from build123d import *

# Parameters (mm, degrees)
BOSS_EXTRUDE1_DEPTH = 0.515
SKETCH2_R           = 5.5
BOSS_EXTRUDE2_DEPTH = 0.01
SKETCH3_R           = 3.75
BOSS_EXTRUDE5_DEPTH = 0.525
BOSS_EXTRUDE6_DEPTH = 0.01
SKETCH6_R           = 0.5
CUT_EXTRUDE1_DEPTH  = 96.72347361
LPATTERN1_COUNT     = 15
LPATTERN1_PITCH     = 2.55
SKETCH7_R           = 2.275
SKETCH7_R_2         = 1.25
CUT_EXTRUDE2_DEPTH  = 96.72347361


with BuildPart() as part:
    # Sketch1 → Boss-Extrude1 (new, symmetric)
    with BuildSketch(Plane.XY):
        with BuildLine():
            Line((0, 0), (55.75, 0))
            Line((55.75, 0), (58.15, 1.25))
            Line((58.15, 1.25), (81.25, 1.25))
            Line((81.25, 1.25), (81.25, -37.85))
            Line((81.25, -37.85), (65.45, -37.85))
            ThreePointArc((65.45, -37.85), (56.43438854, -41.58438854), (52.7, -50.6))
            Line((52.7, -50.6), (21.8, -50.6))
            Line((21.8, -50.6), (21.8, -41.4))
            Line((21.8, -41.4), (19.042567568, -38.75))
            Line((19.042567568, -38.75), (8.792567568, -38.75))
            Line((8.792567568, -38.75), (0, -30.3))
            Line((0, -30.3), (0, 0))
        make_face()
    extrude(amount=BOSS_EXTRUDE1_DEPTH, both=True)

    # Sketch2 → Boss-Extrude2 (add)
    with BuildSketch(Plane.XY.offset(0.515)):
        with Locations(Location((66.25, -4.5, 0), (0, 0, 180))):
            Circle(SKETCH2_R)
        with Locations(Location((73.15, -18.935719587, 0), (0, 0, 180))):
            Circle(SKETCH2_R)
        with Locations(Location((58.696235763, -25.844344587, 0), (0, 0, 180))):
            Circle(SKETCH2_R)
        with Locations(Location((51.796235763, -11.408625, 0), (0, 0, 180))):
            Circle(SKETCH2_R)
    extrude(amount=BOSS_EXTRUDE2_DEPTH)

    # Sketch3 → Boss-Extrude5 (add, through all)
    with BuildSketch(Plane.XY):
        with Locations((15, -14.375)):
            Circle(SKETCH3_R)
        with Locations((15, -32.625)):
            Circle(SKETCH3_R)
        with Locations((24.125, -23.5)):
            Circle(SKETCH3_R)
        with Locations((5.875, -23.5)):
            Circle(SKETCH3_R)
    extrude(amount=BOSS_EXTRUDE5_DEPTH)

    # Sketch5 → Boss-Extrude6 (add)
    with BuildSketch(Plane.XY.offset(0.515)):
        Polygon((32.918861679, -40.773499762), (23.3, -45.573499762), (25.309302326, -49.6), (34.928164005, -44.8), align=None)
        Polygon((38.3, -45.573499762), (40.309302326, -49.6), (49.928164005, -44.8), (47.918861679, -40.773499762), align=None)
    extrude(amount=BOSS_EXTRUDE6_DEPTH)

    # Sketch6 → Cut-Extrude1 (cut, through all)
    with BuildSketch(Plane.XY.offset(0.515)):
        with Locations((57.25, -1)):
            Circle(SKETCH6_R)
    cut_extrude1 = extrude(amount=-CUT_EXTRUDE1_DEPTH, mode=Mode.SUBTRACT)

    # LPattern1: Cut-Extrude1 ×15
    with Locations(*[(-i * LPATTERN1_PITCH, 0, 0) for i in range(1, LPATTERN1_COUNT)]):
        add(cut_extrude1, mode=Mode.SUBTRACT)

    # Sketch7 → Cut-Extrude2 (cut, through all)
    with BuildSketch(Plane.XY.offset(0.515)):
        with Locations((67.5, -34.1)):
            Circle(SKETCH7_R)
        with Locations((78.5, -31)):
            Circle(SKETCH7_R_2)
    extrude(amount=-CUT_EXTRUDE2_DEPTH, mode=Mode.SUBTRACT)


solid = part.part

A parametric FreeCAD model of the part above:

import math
import FreeCAD as App
import Part
import Sketcher
from FreeCAD import Vector

doc = App.newDocument("Part")
body = doc.addObject("PartDesign::Body", "Body")

# Sketch on XY plane
sketch1 = doc.addObject("Sketcher::SketchObject", "Sketch")
body.addObject(sketch1)
sketch1.AttachmentSupport = (doc.XY_Plane, [""])
sketch1.MapMode = "FlatFace"
sketch1.addGeometry([
    Part.LineSegment(Vector(55.8, 0, 0), Vector(0, 0, 0)),  # 0
    Part.LineSegment(Vector(0, 0, 0), Vector(0, -30.3, 0)),  # 1
    Part.LineSegment(Vector(0, -30.3, 0), Vector(8.8, -38.8, 0)),  # 2
    Part.LineSegment(Vector(8.8, -38.8, 0), Vector(19, -38.8, 0)),  # 3
    Part.LineSegment(Vector(19, -38.8, 0), Vector(21.8, -41.4, 0)),  # 4
    Part.LineSegment(Vector(21.8, -41.4, 0), Vector(21.8, -50.6, 0)),  # 5
    Part.LineSegment(Vector(21.8, -50.6, 0), Vector(52.7, -50.6, 0)),  # 6
    Part.ArcOfCircle(Part.Circle(Vector(65.5, -50.6, 0), Vector(0, 0, 1), 12.8), math.radians(90), math.radians(180)),  # 7
    Part.LineSegment(Vector(65.5, -37.9, 0), Vector(81.2, -37.9, 0)),  # 8
    Part.LineSegment(Vector(81.2, -37.9, 0), Vector(81.2, 1.2, 0)),  # 9
    Part.LineSegment(Vector(81.2, 1.2, 0), Vector(58.1, 1.2, 0)),  # 10
    Part.LineSegment(Vector(58.1, 1.2, 0), Vector(55.8, 0, 0)),  # 11
], False)
sketch1.addConstraint([
    Sketcher.Constraint("Coincident", 0, 2, 1, 1),
    Sketcher.Constraint("Coincident", 1, 2, 2, 1),
    Sketcher.Constraint("Coincident", 2, 2, 3, 1),
    Sketcher.Constraint("Coincident", 3, 2, 4, 1),
    Sketcher.Constraint("Coincident", 4, 2, 5, 1),
    Sketcher.Constraint("Coincident", 5, 2, 6, 1),
    Sketcher.Constraint("Coincident", 6, 2, 7, 2),
    Sketcher.Constraint("Tangent", 7, 1, 8, 1),
    Sketcher.Constraint("Coincident", 8, 2, 9, 1),
    Sketcher.Constraint("Coincident", 9, 2, 10, 1),
    Sketcher.Constraint("Coincident", 10, 2, 11, 1),
    Sketcher.Constraint("Coincident", 11, 2, 0, 1),
    Sketcher.Constraint("Horizontal", 0),
    Sketcher.Constraint("Vertical", 1),
    Sketcher.Constraint("Horizontal", 3),
    Sketcher.Constraint("Vertical", 5),
    Sketcher.Constraint("Horizontal", 6),
    Sketcher.Constraint("Horizontal", 8),
    Sketcher.Constraint("Vertical", 9),
    Sketcher.Constraint("Horizontal", 10),
    Sketcher.Constraint("Coincident", 0, 2, -1, 1),
    Sketcher.Constraint("Parallel", 2, 4),
    Sketcher.Constraint("Horizontal", 7, 3, 5, 2),
    Sketcher.Constraint("Radius", 7, 12.75),
    Sketcher.Constraint("DistanceX", 6, 1, 6, 2, 30.9),
    Sketcher.Constraint("DistanceX", 8, 1, 8, 2, 15.8),
    Sketcher.Constraint("DistanceX", 10, 2, 10, 1, 23.1),
    Sketcher.Constraint("DistanceY", 1, 2, 1, 1, 30.3),
    Sketcher.Constraint("DistanceY", 5, 2, 5, 1, 9.2),
    Sketcher.Constraint("DistanceY", 9, 1, 9, 2, 39.1),
    Sketcher.Constraint("DistanceX", 0, 2, 0, 1, 55.75),
    Sketcher.Constraint("DistanceX", 3, 1, 3, 2, 10.25),
    Sketcher.Constraint("DistanceY", 7, 3, -1, 1, 50.6),
    Sketcher.Constraint("DistanceX", -1, 1, 4, 2, 21.8),
    Sketcher.Constraint("DistanceY", 3, 2, 7, 1, 0.9),
])
pad1 = doc.addObject("PartDesign::Pad", "Pad")
body.addObject(pad1)
pad1.Profile = sketch1
pad1.Length = 1.03
pad1.Midplane = True

# Sketch on XY plane
sketch2 = doc.addObject("Sketcher::SketchObject", "Sketch001")
body.addObject(sketch2)
sketch2.AttachmentSupport = (doc.XY_Plane, [""])
sketch2.MapMode = "FlatFace"
sketch2.AttachmentOffset = App.Placement(Vector(0, 0, 0.515), App.Rotation())
sketch2.addGeometry([
    Part.Circle(Vector(66, -4, 0), Vector(0, 0, 1), 6),
    Part.Circle(Vector(73, -19, 0), Vector(0, 0, 1), 6),
    Part.Circle(Vector(59, -26, 0), Vector(0, 0, 1), 6),
    Part.Circle(Vector(52, -11, 0), Vector(0, 0, 1), 6),
], False)
sketch2.addConstraint([
    Sketcher.Constraint("Equal", 0, 1),
    Sketcher.Constraint("Equal", 1, 2),
    Sketcher.Constraint("Equal", 2, 3),
    Sketcher.Constraint("Diameter", 0, 11.0),
    Sketcher.Constraint("DistanceY", 0, 3, -1, 1, 4.5),
    Sketcher.Constraint("DistanceX", 0, 3, 1, 3, 6.9),
    Sketcher.Constraint("DistanceX", 3, 3, 2, 3, 6.9),
    Sketcher.Constraint("DistanceX", -1, 1, 0, 3, 66.25),
    Sketcher.Constraint("DistanceY", 1, 3, -1, 1, 18.93572),
    Sketcher.Constraint("DistanceY", 2, 3, 3, 3, 14.43572),
    Sketcher.Constraint("DistanceX", -1, 1, 2, 3, 58.696236),
    Sketcher.Constraint("DistanceY", 2, 3, -1, 1, 25.844345),
])
pad2 = doc.addObject("PartDesign::Pad", "Pad001")
body.addObject(pad2)
pad2.Profile = sketch2
pad2.Length = 0.01

# Sketch on XY plane
sketch3 = doc.addObject("Sketcher::SketchObject", "Sketch002")
body.addObject(sketch3)
sketch3.AttachmentSupport = (doc.XY_Plane, [""])
sketch3.MapMode = "FlatFace"
sketch3.addGeometry([
    Part.Circle(Vector(15, -14.4, 0), Vector(0, 0, 1), 3.8),
    Part.Circle(Vector(15, -32.6, 0), Vector(0, 0, 1), 3.8),
    Part.Circle(Vector(24.1, -23.5, 0), Vector(0, 0, 1), 3.8),
    Part.Circle(Vector(5.9, -23.5, 0), Vector(0, 0, 1), 3.8),
], False)
sketch3.addConstraint([
    Sketcher.Constraint("Equal", 0, 1),
    Sketcher.Constraint("Equal", 1, 2),
    Sketcher.Constraint("Equal", 2, 3),
    Sketcher.Constraint("Horizontal", 2, 3, 3, 3),
    Sketcher.Constraint("Vertical", 0, 3, 1, 3),
    Sketcher.Constraint("Diameter", 0, 7.5),
    Sketcher.Constraint("DistanceX", -1, 1, 0, 3, 15.0),
    Sketcher.Constraint("DistanceY", 2, 3, -1, 1, 23.5),
    Sketcher.Constraint("DistanceY", 1, 3, 0, 3, 18.25),
    Sketcher.Constraint("DistanceX", 3, 3, 2, 3, 18.25),
    Sketcher.Constraint("DistanceY", 0, 3, -1, 1, 14.375),
    Sketcher.Constraint("DistanceX", -1, 1, 2, 3, 24.125),
])
pad3 = doc.addObject("PartDesign::Pad", "Pad002")
body.addObject(pad3)
pad3.Profile = sketch3
pad3.Length = 0.525

# Sketch on XY plane
sketch4 = doc.addObject("Sketcher::SketchObject", "Sketch003")
body.addObject(sketch4)
sketch4.AttachmentSupport = (doc.XY_Plane, [""])
sketch4.MapMode = "FlatFace"
sketch4.AttachmentOffset = App.Placement(Vector(0, 0, 0.515), App.Rotation())
sketch4.addGeometry([
    Part.LineSegment(Vector(32.9, -40.8, 0), Vector(23.3, -45.6, 0)),  # 0
    Part.LineSegment(Vector(23.3, -45.6, 0), Vector(25.3, -49.6, 0)),  # 1
    Part.LineSegment(Vector(25.3, -49.6, 0), Vector(34.9, -44.8, 0)),  # 2
    Part.LineSegment(Vector(34.9, -44.8, 0), Vector(32.9, -40.8, 0)),  # 3
    Part.LineSegment(Vector(38.3, -45.6, 0), Vector(40.3, -49.6, 0)),  # 4
    Part.LineSegment(Vector(40.3, -49.6, 0), Vector(49.9, -44.8, 0)),  # 5
    Part.LineSegment(Vector(49.9, -44.8, 0), Vector(47.9, -40.8, 0)),  # 6
    Part.LineSegment(Vector(47.9, -40.8, 0), Vector(38.3, -45.6, 0)),  # 7
], False)
sketch4.addConstraint([
    Sketcher.Constraint("Coincident", 0, 2, 1, 1),
    Sketcher.Constraint("Coincident", 1, 2, 2, 1),
    Sketcher.Constraint("Coincident", 2, 2, 3, 1),
    Sketcher.Constraint("Coincident", 3, 2, 0, 1),
    Sketcher.Constraint("Coincident", 4, 2, 5, 1),
    Sketcher.Constraint("Coincident", 5, 2, 6, 1),
    Sketcher.Constraint("Coincident", 6, 2, 7, 1),
    Sketcher.Constraint("Coincident", 7, 2, 4, 1),
    Sketcher.Constraint("Perpendicular", 0, 1),
    Sketcher.Constraint("Perpendicular", 1, 2),
    Sketcher.Constraint("Perpendicular", 2, 3),
    Sketcher.Constraint("Parallel", 3, 4),
    Sketcher.Constraint("Perpendicular", 4, 5),
    Sketcher.Constraint("Perpendicular", 5, 6),
    Sketcher.Constraint("Perpendicular", 6, 7),
    Sketcher.Constraint("Horizontal", 1, 2, 4, 2),
    Sketcher.Constraint("Horizontal", 2, 2, 5, 2),
    Sketcher.Constraint("Horizontal", 3, 2, 6, 2),
    Sketcher.Constraint("DistanceX", 1, 2, 4, 2, 15.0),
    Sketcher.Constraint("Distance", 1, 4.5),
    Sketcher.Constraint("DistanceX", -1, 1, 0, 2, 23.3),
    Sketcher.Constraint("DistanceY", 1, 2, -1, 1, 49.6),
    Sketcher.Constraint("DistanceY", 2, 2, -1, 1, 44.8),
    Sketcher.Constraint("Distance", 0, 10.75),
])
pad4 = doc.addObject("PartDesign::Pad", "Pad003")
body.addObject(pad4)
pad4.Profile = sketch4
pad4.Length = 0.01

# Sketch on XY plane
sketch5 = doc.addObject("Sketcher::SketchObject", "Sketch004")
body.addObject(sketch5)
sketch5.AttachmentSupport = (doc.XY_Plane, [""])
sketch5.MapMode = "FlatFace"
sketch5.AttachmentOffset = App.Placement(Vector(0, 0, 0.515), App.Rotation())
sketch5.addGeometry(Part.Circle(Vector(57.2, -1, 0), Vector(0, 0, 1), 0.5), False)
sketch5.addConstraint([
    Sketcher.Constraint("Diameter", 0, 1.0),
    Sketcher.Constraint("DistanceY", 0, 3, -1, 1, 1.0),
    Sketcher.Constraint("DistanceX", -1, 1, 0, 3, 57.25),
])
pocket1 = doc.addObject("PartDesign::Pocket", "Pocket")
body.addObject(pocket1)
pocket1.Profile = sketch5
pocket1.Type = "ThroughAll"
doc.recompute()

linearpattern = doc.addObject("PartDesign::LinearPattern", "LinearPattern")
body.addObject(linearpattern)
linearpattern.Originals = [pocket1]
linearpattern.Direction = (doc.X_Axis, [""])
linearpattern.Mode = "offset"
linearpattern.Offset = 2.55
linearpattern.Occurrences = 15
linearpattern.Reversed = True
body.Tip = linearpattern

# Sketch on XY plane
sketch6 = doc.addObject("Sketcher::SketchObject", "Sketch005")
body.addObject(sketch6)
sketch6.AttachmentSupport = (doc.XY_Plane, [""])
sketch6.MapMode = "FlatFace"
sketch6.AttachmentOffset = App.Placement(Vector(0, 0, 0.515), App.Rotation())
sketch6.addGeometry([
    Part.Circle(Vector(67.5, -34.1, 0), Vector(0, 0, 1), 2.3),
    Part.Circle(Vector(78.5, -31, 0), Vector(0, 0, 1), 1.2),
], False)
sketch6.addConstraint([
    Sketcher.Constraint("Diameter", 1, 2.5),
    Sketcher.Constraint("Diameter", 0, 4.55),
    Sketcher.Constraint("DistanceY", 1, 3, -1, 1, 31.0),
    Sketcher.Constraint("DistanceX", 0, 3, 1, 3, 11.0),
    Sketcher.Constraint("DistanceX", -1, 1, 0, 3, 67.5),
    Sketcher.Constraint("DistanceY", 0, 3, -1, 1, 34.1),
])
pocket2 = doc.addObject("PartDesign::Pocket", "Pocket001")
body.addObject(pocket2)
pocket2.Profile = sketch6
pocket2.Type = "ThroughAll"

doc.recompute()
